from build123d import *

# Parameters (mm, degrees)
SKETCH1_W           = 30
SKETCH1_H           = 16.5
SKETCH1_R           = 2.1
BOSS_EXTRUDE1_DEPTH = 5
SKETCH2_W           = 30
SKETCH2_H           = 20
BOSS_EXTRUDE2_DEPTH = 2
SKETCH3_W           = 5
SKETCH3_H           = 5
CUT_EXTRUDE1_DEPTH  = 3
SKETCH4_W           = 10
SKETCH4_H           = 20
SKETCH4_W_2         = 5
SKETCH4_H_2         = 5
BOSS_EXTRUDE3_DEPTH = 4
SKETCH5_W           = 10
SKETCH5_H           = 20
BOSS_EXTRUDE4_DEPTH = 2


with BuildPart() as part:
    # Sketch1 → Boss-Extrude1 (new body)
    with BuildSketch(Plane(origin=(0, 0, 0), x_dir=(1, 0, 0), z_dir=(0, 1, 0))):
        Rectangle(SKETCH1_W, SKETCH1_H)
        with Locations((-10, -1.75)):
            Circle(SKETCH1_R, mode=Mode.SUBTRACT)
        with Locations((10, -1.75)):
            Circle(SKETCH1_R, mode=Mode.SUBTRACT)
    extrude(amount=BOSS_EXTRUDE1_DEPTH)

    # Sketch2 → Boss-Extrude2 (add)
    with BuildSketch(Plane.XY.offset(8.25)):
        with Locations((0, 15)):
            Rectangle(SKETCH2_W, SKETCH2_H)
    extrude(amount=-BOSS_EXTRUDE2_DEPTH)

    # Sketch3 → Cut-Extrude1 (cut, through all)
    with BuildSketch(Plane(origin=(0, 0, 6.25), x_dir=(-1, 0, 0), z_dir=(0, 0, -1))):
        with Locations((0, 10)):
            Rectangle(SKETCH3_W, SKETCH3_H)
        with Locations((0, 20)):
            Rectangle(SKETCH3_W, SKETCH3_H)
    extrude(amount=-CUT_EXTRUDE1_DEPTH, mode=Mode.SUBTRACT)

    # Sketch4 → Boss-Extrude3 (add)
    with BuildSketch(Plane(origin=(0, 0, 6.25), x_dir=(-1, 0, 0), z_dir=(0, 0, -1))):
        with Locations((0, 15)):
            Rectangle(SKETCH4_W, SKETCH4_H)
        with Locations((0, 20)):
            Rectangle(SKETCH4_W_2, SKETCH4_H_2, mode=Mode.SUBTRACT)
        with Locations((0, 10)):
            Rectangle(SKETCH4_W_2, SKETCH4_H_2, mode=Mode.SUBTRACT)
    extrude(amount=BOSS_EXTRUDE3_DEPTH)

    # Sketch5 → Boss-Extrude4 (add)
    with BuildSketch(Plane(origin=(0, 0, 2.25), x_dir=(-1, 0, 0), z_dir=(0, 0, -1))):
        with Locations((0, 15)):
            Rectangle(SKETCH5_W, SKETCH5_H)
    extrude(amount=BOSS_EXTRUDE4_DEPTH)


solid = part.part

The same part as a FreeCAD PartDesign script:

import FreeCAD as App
import Part
import Sketcher

V = App.Vector

doc = App.newDocument("Part")
body = doc.addObject("PartDesign::Body", "Body")

sketch1 = body.newObject("Sketcher::SketchObject", "Sketch")
sketch1.AttachmentSupport = (doc.getObject("XZ_Plane"), [""])
sketch1.MapMode = "FlatFace"
sketch1.addGeometry([
    Part.LineSegment(V(-15, -8.2, 0), V(-15, 8.2, 0)),
    Part.LineSegment(V(-15, 8.2, 0), V(15, 8.2, 0)),
    Part.LineSegment(V(15, 8.2, 0), V(15, -8.2, 0)),
    Part.LineSegment(V(15, -8.2, 0), V(-15, -8.2, 0)),
    Part.Circle(V(-10, 1.8, 0), V(0, 0, 1), 2.1),
    Part.Circle(V(10, 1.8, 0), V(0, 0, 1), 2.1),
], False)
sketch1.addConstraint([
    Sketcher.Constraint("Coincident", 0, 2, 1, 1),
    Sketcher.Constraint("Coincident", 1, 2, 2, 1),
    Sketcher.Constraint("Coincident", 2, 2, 3, 1),
    Sketcher.Constraint("Coincident", 3, 2, 0, 1),
    Sketcher.Constraint("Vertical", 0),
    Sketcher.Constraint("Horizontal", 1),
    Sketcher.Constraint("Vertical", 2),
    Sketcher.Constraint("Horizontal", 3),
    Sketcher.Constraint("Equal", 4, 5),
    Sketcher.Constraint("Symmetric", 0, 2, 2, 2, -1, 1),
    Sketcher.Constraint("Symmetric", 4, 3, 5, 3, -2),
    Sketcher.Constraint("Diameter", 4, 4.2),
    Sketcher.Constraint("DistanceX", 1, 1, 1, 2, 30.0),
    Sketcher.Constraint("DistanceY", 0, 1, 0, 2, 16.5),
    Sketcher.Constraint("DistanceX", 4, 3, -1, 1, 10.0),
    Sketcher.Constraint("DistanceY", 2, 2, 5, 3, 10.0),
])
pad1 = body.newObject("PartDesign::Pad", "Pad")
pad1.Profile = sketch1
pad1.Length = 5
pad1.Reversed = True

sketch2 = body.newObject("Sketcher::SketchObject", "Sketch001")
sketch2.AttachmentSupport = (doc.getObject("XY_Plane"), [""])
sketch2.MapMode = "FlatFace"
sketch2.AttachmentOffset = App.Placement(V(0, 0, 8.25), App.Rotation())
sketch2.addGeometry([
    Part.LineSegment(V(-15, 25, 0), V(-15, 5, 0)),
    Part.LineSegment(V(-15, 5, 0), V(15, 5, 0)),
    Part.LineSegment(V(15, 5, 0), V(15, 25, 0)),
    Part.LineSegment(V(15, 25, 0), V(-15, 25, 0)),
], False)
sketch2.addConstraint([
    Sketcher.Constraint("Coincident", 0, 2, 1, 1),
    Sketcher.Constraint("Coincident", 1, 2, 2, 1),
    Sketcher.Constraint("Coincident", 2, 2, 3, 1),
    Sketcher.Constraint("Coincident", 3, 2, 0, 1),
    Sketcher.Constraint("Vertical", 0),
    Sketcher.Constraint("Horizontal", 1),
    Sketcher.Constraint("Vertical", 2),
    Sketcher.Constraint("Horizontal", 3),
    Sketcher.Constraint("DistanceX", 1, 1, 1, 2, 30.0),
    Sketcher.Constraint("DistanceY", 0, 2, 0, 1, 20.0),
    Sketcher.Constraint("DistanceX", 0, 2, -1, 1, 15.0),
    Sketcher.Constraint("DistanceY", -1, 1, 0, 2, 5.0),
])
pad2 = body.newObject("PartDesign::Pad", "Pad001")
pad2.Profile = sketch2
pad2.Length = 2
pad2.Reversed = True

sketch3 = body.newObject("Sketcher::SketchObject", "Sketch002")
sketch3.AttachmentSupport = (doc.getObject("XY_Plane"), [""])
sketch3.MapMode = "FlatFace"
sketch3.AttachmentOffset = App.Placement(V(0, 0, 6.25), App.Rotation())
sketch3.addGeometry([
    Part.LineSegment(V(2, 12, 0), V(2, 8, 0)),
    Part.LineSegment(V(2, 8, 0), V(-2, 8, 0)),
    Part.LineSegment(V(-2, 8, 0), V(-2, 12, 0)),
    Part.LineSegment(V(-2, 12, 0), V(2, 12, 0)),
    Part.LineSegment(V(2, 22, 0), V(2, 18, 0)),
    Part.LineSegment(V(2, 18, 0), V(-2, 18, 0)),
    Part.LineSegment(V(-2, 18, 0), V(-2, 22, 0)),
    Part.LineSegment(V(-2, 22, 0), V(2, 22, 0)),
], False)
sketch3.addConstraint([
    Sketcher.Constraint("Coincident", 0, 2, 1, 1),
    Sketcher.Constraint("Coincident", 1, 2, 2, 1),
    Sketcher.Constraint("Coincident", 2, 2, 3, 1),
    Sketcher.Constraint("Coincident", 3, 2, 0, 1),
    Sketcher.Constraint("Coincident", 4, 2, 5, 1),
    Sketcher.Constraint("Coincident", 5, 2, 6, 1),
    Sketcher.Constraint("Coincident", 6, 2, 7, 1),
    Sketcher.Constraint("Coincident", 7, 2, 4, 1),
    Sketcher.Constraint("Vertical", 0),
    Sketcher.Constraint("Horizontal", 1),
    Sketcher.Constraint("Vertical", 2),
    Sketcher.Constraint("Horizontal", 3),
    Sketcher.Constraint("Vertical", 4),
    Sketcher.Constraint("Horizontal", 5),
    Sketcher.Constraint("Vertical", 6),
    Sketcher.Constraint("Horizontal", 7),
    Sketcher.Constraint("Vertical", 3, 2, 4, 2),
    Sketcher.Constraint("Vertical", 2, 2, 5, 2),
    Sketcher.Constraint("Equal", 7, 0),
    Sketcher.Constraint("Equal", 2, 4),
    Sketcher.Constraint("DistanceX", 1, 2, 1, 1, 5.0),
    Sketcher.Constraint("DistanceY", 3, 2, 4, 2, 5.0),
    Sketcher.Constraint("DistanceX", -1, 1, 0, 2, 2.5),
    Sketcher.Constraint("DistanceY", -1, 1, 0, 2, 7.5),
])
pocket1 = body.newObject("PartDesign::Pocket", "Pocket")
pocket1.Profile = sketch3
pocket1.Type = "ThroughAll"
pocket1.Reversed = True

sketch4 = body.newObject("Sketcher::SketchObject", "Sketch003")
sketch4.AttachmentSupport = (doc.getObject("XY_Plane"), [""])
sketch4.MapMode = "FlatFace"
sketch4.AttachmentOffset = App.Placement(V(0, 0, 6.25), App.Rotation())
sketch4.addGeometry([
    Part.LineSegment(V(5, 25, 0), V(5, 5, 0)),
    Part.LineSegment(V(5, 5, 0), V(-5, 5, 0)),
    Part.LineSegment(V(-5, 5, 0), V(-5, 25, 0)),
    Part.LineSegment(V(-5, 25, 0), V(5, 25, 0)),
    Part.LineSegment(V(-2, 8, 0), V(2, 8, 0)),
    Part.LineSegment(V(2, 8, 0), V(2, 12, 0)),
    Part.LineSegment(V(2, 12, 0), V(-2, 12, 0)),
    Part.LineSegment(V(-2, 12, 0), V(-2, 8, 0)),
    Part.LineSegment(V(-2, 18, 0), V(2, 18, 0)),
    Part.LineSegment(V(2, 18, 0), V(2, 22, 0)),
    Part.LineSegment(V(2, 22, 0), V(-2, 22, 0)),
    Part.LineSegment(V(-2, 22, 0), V(-2, 18, 0)),
], False)
sketch4.addConstraint([
    Sketcher.Constraint("Coincident", 0, 2, 1, 1),
    Sketcher.Constraint("Coincident", 1, 2, 2, 1),
    Sketcher.Constraint("Coincident", 2, 2, 3, 1),
    Sketcher.Constraint("Coincident", 3, 2, 0, 1),
    Sketcher.Constraint("Coincident", 4, 2, 5, 1),
    Sketcher.Constraint("Coincident", 5, 2, 6, 1),
    Sketcher.Constraint("Coincident", 6, 2, 7, 1),
    Sketcher.Constraint("Coincident", 7, 2, 4, 1),
    Sketcher.Constraint("Coincident", 8, 2, 9, 1),
    Sketcher.Constraint("Coincident", 9, 2, 10, 1),
    Sketcher.Constraint("Coincident", 10, 2, 11, 1),
    Sketcher.Constraint("Coincident", 11, 2, 8, 1),
    Sketcher.Constraint("Vertical", 0),
    Sketcher.Constraint("Horizontal", 1),
    Sketcher.Constraint("Vertical", 2),
    Sketcher.Constraint("Horizontal", 3),
    Sketcher.Constraint("Horizontal", 4),
    Sketcher.Constraint("Vertical", 5),
    Sketcher.Constraint("Horizontal", 6),
    Sketcher.Constraint("Vertical", 7),
    Sketcher.Constraint("Horizontal", 8),
    Sketcher.Constraint("Vertical", 9),
    Sketcher.Constraint("Horizontal", 10),
    Sketcher.Constraint("Vertical", 11),
    Sketcher.Constraint("Vertical", 5, 2, 8, 2),
    Sketcher.Constraint("Vertical", 7, 2, 10, 2),
    Sketcher.Constraint("Equal", 10, 5),
    Sketcher.Constraint("Equal", 7, 9),
    Sketcher.Constraint("DistanceX", 1, 2, 1, 1, 10.0),
    Sketcher.Constraint("DistanceX", 4, 1, 4, 2, 5.0),
    Sketcher.Constraint("DistanceY", 0, 2, 0, 1, 20.0),
    Sketcher.Constraint("DistanceX", -1, 1, 0, 2, 5.0),
    Sketcher.Constraint("DistanceY", -1, 1, 0, 2, 5.0),
    Sketcher.Constraint("DistanceY", 5, 2, 8, 2, 5.0),
    Sketcher.Constraint("DistanceX", -1, 1, 4, 2, 2.5),
    Sketcher.Constraint("DistanceY", -1, 1, 4, 2, 7.5),
])
pad3 = body.newObject("PartDesign::Pad", "Pad002")
pad3.Profile = sketch4
pad3.Length = 4
pad3.Reversed = True

sketch5 = body.newObject("Sketcher::SketchObject", "Sketch004")
sketch5.AttachmentSupport = (doc.getObject("XY_Plane"), [""])
sketch5.MapMode = "FlatFace"
sketch5.AttachmentOffset = App.Placement(V(0, 0, 2.25), App.Rotation())
sketch5.addGeometry([
    Part.LineSegment(V(5, 25, 0), V(5, 5, 0)),
    Part.LineSegment(V(5, 5, 0), V(-5, 5, 0)),
    Part.LineSegment(V(-5, 5, 0), V(-5, 25, 0)),
    Part.LineSegment(V(-5, 25, 0), V(5, 25, 0)),
], False)
sketch5.addConstraint([
    Sketcher.Constraint("Coincident", 0, 2, 1, 1),
    Sketcher.Constraint("Coincident", 1, 2, 2, 1),
    Sketcher.Constraint("Coincident", 2, 2, 3, 1),
    Sketcher.Constraint("Coincident", 3, 2, 0, 1),
    Sketcher.Constraint("Vertical", 0),
    Sketcher.Constraint("Horizontal", 1),
    Sketcher.Constraint("Vertical", 2),
    Sketcher.Constraint("Horizontal", 3),
    Sketcher.Constraint("DistanceX", 1, 2, 1, 1, 10.0),
    Sketcher.Constraint("DistanceY", 0, 2, 0, 1, 20.0),
    Sketcher.Constraint("DistanceX", -1, 1, 0, 2, 5.0),
    Sketcher.Constraint("DistanceY", -1, 1, 0, 2, 5.0),
])
pad4 = body.newObject("PartDesign::Pad", "Pad003")
pad4.Profile = sketch5
pad4.Length = 2
pad4.Reversed = True

doc.recompute()
